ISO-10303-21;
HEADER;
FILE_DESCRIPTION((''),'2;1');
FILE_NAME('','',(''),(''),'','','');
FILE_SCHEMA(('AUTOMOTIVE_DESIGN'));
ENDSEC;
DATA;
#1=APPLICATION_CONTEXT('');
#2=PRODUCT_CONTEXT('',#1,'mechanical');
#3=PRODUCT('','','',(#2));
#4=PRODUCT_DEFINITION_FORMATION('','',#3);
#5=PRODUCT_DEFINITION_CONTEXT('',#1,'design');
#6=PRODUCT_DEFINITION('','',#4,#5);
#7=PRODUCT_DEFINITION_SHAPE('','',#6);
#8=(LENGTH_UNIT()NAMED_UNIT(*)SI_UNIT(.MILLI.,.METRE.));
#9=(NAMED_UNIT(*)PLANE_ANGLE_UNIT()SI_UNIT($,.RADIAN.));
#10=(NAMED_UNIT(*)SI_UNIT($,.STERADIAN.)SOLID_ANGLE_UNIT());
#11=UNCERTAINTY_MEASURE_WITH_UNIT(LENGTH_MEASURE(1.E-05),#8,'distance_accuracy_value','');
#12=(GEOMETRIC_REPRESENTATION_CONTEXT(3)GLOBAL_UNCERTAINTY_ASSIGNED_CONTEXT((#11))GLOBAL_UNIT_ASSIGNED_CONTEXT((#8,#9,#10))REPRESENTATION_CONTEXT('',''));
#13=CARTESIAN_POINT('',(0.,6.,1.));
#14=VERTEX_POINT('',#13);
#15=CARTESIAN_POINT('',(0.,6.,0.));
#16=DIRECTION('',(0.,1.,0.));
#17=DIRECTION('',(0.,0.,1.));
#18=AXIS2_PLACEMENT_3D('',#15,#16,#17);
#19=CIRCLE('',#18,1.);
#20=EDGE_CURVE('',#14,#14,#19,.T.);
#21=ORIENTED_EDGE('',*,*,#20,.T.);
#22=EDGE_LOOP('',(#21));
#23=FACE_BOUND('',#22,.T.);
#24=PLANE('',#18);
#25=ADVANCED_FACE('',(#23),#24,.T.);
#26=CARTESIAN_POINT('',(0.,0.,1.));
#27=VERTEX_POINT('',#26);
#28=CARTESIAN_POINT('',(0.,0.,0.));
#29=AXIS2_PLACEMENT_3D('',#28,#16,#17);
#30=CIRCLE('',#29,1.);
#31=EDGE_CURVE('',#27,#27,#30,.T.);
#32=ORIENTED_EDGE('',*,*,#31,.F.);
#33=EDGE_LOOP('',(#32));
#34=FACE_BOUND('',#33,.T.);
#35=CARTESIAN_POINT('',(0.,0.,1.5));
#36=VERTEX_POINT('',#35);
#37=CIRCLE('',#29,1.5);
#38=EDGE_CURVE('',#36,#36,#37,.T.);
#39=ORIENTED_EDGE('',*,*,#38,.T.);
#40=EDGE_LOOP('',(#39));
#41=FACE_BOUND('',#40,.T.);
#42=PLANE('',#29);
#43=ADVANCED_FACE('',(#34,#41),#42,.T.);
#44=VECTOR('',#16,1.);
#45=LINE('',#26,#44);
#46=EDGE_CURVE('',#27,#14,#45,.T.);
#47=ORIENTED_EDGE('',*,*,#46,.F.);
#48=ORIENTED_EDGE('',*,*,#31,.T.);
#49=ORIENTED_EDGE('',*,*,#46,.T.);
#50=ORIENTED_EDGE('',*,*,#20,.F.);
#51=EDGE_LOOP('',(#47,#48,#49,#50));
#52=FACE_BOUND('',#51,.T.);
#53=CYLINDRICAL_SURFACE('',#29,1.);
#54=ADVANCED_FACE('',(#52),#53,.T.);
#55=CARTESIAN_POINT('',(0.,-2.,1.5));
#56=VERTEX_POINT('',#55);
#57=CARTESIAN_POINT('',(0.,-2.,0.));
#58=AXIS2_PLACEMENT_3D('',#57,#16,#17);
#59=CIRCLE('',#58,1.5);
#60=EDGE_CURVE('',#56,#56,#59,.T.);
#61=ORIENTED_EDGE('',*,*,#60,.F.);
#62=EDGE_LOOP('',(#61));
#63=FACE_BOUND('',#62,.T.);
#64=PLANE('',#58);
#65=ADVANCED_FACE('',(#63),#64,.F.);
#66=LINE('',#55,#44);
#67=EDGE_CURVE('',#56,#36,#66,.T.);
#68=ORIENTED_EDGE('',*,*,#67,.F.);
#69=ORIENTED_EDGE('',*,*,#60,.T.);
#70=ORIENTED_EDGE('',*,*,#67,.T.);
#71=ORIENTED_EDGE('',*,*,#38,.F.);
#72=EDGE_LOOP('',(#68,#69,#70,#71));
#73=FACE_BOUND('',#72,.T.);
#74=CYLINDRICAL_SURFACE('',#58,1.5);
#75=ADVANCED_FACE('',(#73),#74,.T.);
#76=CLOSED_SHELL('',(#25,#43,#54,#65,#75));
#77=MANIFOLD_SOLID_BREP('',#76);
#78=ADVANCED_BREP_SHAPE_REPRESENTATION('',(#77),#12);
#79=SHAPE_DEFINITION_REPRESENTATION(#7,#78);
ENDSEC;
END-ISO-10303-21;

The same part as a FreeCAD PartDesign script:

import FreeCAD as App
import Part
import Sketcher
from FreeCAD import Vector


def add_polygon(sketch, points):
    """Adds a closed chain of lines whose ends are joined by coincident constraints."""
    first, n = sketch.GeometryCount, len(points)
    for a, b in zip(points, points[1:] + points[:1]):
        sketch.addGeometry(Part.LineSegment(App.Vector(*a, 0), App.Vector(*b, 0)), False)
    for i in range(n):
        sketch.addConstraint(Sketcher.Constraint("Coincident", first + i, 2, first + (i + 1) % n, 1))

doc = App.newDocument("Part")
body = doc.addObject("PartDesign::Body", "Body")

# Sketch on YZ plane
sketch1 = body.newObject("Sketcher::SketchObject", "Sketch")
sketch1.AttachmentSupport = (doc.getObject("YZ_Plane"), [""])
sketch1.MapMode = "FlatFace"
add_polygon(sketch1, [(-2, 1.5), (-2, 0), (6, 0), (6, 1), (0, 1), (0, 1.5)])  # lines 0-5
sketch1.addConstraint(Sketcher.Constraint("Vertical", 0))
sketch1.addConstraint(Sketcher.Constraint("Horizontal", 1))
sketch1.addConstraint(Sketcher.Constraint("Vertical", 2))
sketch1.addConstraint(Sketcher.Constraint("Horizontal", 3))
sketch1.addConstraint(Sketcher.Constraint("Vertical", 4))
sketch1.addConstraint(Sketcher.Constraint("Horizontal", 5))
sketch1.addConstraint(Sketcher.Constraint("PointOnObject", 0, 2, -1))
sketch1.addConstraint(Sketcher.Constraint("PointOnObject", 3, 2, -2))
sketch1.addConstraint(Sketcher.Constraint("DistanceX", 1, 1, 1, 2, 8.0))
sketch1.addConstraint(Sketcher.Constraint("DistanceX", 3, 2, 3, 1, 6.0))
sketch1.addConstraint(Sketcher.Constraint("DistanceY", 2, 1, 2, 2, 1.0))
sketch1.addConstraint(Sketcher.Constraint("DistanceY", 0, 2, 0, 1, 1.5))
revolution = body.newObject("PartDesign::Revolution", "Revolution")
revolution.Profile = sketch1
revolution.ReferenceAxis = (sketch1, ["H_Axis"])
revolution.Angle = 360

doc.recompute()
